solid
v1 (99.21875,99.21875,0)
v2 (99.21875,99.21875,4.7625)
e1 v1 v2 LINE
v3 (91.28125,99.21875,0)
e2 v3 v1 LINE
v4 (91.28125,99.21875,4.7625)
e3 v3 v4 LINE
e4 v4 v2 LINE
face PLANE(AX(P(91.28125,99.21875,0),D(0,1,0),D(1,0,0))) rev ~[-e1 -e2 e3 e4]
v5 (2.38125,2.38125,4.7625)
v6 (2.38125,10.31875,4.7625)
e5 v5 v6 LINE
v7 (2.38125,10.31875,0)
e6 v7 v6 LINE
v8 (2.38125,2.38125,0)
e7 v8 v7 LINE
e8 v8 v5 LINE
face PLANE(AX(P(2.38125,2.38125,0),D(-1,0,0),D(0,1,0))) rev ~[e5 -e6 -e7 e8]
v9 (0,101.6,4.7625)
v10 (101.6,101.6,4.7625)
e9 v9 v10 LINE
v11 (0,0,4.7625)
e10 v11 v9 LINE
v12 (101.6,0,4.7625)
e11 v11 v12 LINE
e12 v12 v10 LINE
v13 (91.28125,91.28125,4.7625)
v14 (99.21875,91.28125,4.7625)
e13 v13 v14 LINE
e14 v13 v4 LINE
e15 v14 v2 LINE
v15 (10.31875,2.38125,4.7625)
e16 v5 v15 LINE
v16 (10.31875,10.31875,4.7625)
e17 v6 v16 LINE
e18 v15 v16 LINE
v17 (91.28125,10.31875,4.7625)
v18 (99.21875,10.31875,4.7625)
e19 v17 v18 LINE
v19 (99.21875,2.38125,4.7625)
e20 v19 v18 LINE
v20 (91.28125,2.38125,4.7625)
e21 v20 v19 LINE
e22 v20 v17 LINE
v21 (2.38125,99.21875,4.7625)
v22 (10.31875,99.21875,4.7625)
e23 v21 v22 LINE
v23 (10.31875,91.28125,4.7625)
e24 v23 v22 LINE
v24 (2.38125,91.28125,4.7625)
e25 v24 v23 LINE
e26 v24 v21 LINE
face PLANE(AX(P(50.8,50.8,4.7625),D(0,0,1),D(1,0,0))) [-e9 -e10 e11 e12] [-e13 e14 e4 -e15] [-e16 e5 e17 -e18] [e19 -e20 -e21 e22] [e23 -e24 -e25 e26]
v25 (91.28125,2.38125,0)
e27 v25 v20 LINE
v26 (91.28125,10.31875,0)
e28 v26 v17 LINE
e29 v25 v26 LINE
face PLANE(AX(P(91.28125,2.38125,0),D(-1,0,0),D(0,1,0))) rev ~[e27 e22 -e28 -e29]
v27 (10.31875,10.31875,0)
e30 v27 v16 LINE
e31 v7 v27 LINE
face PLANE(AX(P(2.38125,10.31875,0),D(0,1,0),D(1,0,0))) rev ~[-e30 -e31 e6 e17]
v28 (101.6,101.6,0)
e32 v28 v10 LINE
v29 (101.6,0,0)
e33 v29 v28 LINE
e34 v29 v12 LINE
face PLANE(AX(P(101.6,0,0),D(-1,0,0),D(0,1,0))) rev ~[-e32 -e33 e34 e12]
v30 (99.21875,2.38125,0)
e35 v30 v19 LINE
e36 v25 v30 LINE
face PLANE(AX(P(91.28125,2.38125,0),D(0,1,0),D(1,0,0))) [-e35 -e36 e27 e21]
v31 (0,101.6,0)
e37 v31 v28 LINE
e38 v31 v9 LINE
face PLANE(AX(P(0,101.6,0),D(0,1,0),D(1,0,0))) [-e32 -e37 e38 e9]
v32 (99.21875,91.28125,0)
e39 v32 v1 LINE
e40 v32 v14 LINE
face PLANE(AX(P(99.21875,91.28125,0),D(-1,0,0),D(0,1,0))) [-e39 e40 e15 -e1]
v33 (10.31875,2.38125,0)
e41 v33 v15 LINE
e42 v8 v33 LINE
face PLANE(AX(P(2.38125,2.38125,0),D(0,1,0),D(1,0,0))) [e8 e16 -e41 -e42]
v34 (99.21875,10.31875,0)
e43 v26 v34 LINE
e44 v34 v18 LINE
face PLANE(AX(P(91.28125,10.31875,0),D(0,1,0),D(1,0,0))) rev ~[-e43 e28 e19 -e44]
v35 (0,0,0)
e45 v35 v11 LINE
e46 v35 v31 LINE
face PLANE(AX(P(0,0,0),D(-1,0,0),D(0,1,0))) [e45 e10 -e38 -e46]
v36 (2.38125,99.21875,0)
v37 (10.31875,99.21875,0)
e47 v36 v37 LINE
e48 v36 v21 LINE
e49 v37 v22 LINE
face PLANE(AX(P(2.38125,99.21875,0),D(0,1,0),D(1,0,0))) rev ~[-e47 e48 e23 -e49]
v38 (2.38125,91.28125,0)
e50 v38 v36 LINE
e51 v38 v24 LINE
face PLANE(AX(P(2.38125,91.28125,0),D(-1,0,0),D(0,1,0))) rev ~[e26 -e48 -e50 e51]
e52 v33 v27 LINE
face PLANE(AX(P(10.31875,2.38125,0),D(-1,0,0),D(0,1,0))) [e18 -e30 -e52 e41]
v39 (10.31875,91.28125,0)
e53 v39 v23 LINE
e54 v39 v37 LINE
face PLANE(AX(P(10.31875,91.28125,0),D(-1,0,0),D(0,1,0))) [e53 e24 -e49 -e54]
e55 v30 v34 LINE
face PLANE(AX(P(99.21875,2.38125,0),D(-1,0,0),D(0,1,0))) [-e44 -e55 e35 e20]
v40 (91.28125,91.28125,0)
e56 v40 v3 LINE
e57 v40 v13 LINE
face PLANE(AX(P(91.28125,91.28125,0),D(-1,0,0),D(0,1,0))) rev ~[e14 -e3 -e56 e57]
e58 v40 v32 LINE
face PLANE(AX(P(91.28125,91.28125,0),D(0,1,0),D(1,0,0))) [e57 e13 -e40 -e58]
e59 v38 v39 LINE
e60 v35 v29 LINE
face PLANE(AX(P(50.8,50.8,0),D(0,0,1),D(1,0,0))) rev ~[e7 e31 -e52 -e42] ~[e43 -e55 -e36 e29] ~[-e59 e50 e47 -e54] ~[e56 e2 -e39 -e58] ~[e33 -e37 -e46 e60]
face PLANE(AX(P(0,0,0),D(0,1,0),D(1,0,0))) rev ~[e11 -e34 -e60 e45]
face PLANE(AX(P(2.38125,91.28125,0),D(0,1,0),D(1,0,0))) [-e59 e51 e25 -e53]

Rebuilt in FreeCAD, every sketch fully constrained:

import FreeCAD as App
import Part
import Sketcher

V = App.Vector
Q = App.Units.Quantity

doc = App.newDocument("Part")
body = doc.addObject("PartDesign::Body", "Body")

# Sketch on XY plane
sketch1 = body.newObject("Sketcher::SketchObject", "Sketch")
sketch1.AttachmentSupport = (doc.getObject("XY_Plane"), [""])
sketch1.MapMode = "FlatFace"
sketch1.addGeometry([
    Part.LineSegment(V(0, 102, 0), V(0, 0, 0)),  # 0
    Part.LineSegment(V(0, 0, 0), V(102, 0, 0)),  # 1
    Part.LineSegment(V(102, 0, 0), V(102, 102, 0)),  # 2
    Part.LineSegment(V(102, 102, 0), V(0, 102, 0)),  # 3
    Part.LineSegment(V(10, 2, 0), V(2, 2, 0)),  # 4
    Part.LineSegment(V(2, 2, 0), V(2, 10, 0)),  # 5
    Part.LineSegment(V(2, 10, 0), V(10, 10, 0)),  # 6
    Part.LineSegment(V(10, 10, 0), V(10, 2, 0)),  # 7
    Part.LineSegment(V(99, 2, 0), V(91, 2, 0)),  # 8
    Part.LineSegment(V(91, 2, 0), V(91, 10, 0)),  # 9
    Part.LineSegment(V(91, 10, 0), V(99, 10, 0)),  # 10
    Part.LineSegment(V(99, 10, 0), V(99, 2, 0)),  # 11
    Part.LineSegment(V(10, 91, 0), V(2, 91, 0)),  # 12
    Part.LineSegment(V(2, 91, 0), V(2, 99, 0)),  # 13
    Part.LineSegment(V(2, 99, 0), V(10, 99, 0)),  # 14
    Part.LineSegment(V(10, 99, 0), V(10, 91, 0)),  # 15
    Part.LineSegment(V(99, 91, 0), V(91, 91, 0)),  # 16
    Part.LineSegment(V(91, 91, 0), V(91, 99, 0)),  # 17
    Part.LineSegment(V(91, 99, 0), V(99, 99, 0)),  # 18
    Part.LineSegment(V(99, 99, 0), V(99, 91, 0)),  # 19
], False)
sketch1.addConstraint([
    Sketcher.Constraint("Coincident", 0, 2, 1, 1),
    Sketcher.Constraint("Coincident", 1, 2, 2, 1),
    Sketcher.Constraint("Coincident", 2, 2, 3, 1),
    Sketcher.Constraint("Coincident", 3, 2, 0, 1),
    Sketcher.Constraint("Coincident", 4, 2, 5, 1),
    Sketcher.Constraint("Coincident", 5, 2, 6, 1),
    Sketcher.Constraint("Coincident", 6, 2, 7, 1),
    Sketcher.Constraint("Coincident", 7, 2, 4, 1),
    Sketcher.Constraint("Coincident", 8, 2, 9, 1),
    Sketcher.Constraint("Coincident", 9, 2, 10, 1),
    Sketcher.Constraint("Coincident", 10, 2, 11, 1),
    Sketcher.Constraint("Coincident", 11, 2, 8, 1),
    Sketcher.Constraint("Coincident", 12, 2, 13, 1),
    Sketcher.Constraint("Coincident", 13, 2, 14, 1),
    Sketcher.Constraint("Coincident", 14, 2, 15, 1),
    Sketcher.Constraint("Coincident", 15, 2, 12, 1),
    Sketcher.Constraint("Coincident", 16, 2, 17, 1),
    Sketcher.Constraint("Coincident", 17, 2, 18, 1),
    Sketcher.Constraint("Coincident", 18, 2, 19, 1),
    Sketcher.Constraint("Coincident", 19, 2, 16, 1),
    Sketcher.Constraint("Vertical", 0),
    Sketcher.Constraint("Horizontal", 1),
    Sketcher.Constraint("Vertical", 2),
    Sketcher.Constraint("Horizontal", 3),
    Sketcher.Constraint("Horizontal", 4),
    Sketcher.Constraint("Vertical", 5),
    Sketcher.Constraint("Horizontal", 6),
    Sketcher.Constraint("Vertical", 7),
    Sketcher.Constraint("Horizontal", 8),
    Sketcher.Constraint("Vertical", 9),
    Sketcher.Constraint("Horizontal", 10),
    Sketcher.Constraint("Vertical", 11),
    Sketcher.Constraint("Horizontal", 12),
    Sketcher.Constraint("Vertical", 13),
    Sketcher.Constraint("Horizontal", 14),
    Sketcher.Constraint("Vertical", 15),
    Sketcher.Constraint("Horizontal", 16),
    Sketcher.Constraint("Vertical", 17),
    Sketcher.Constraint("Horizontal", 18),
    Sketcher.Constraint("Vertical", 19),
    Sketcher.Constraint("Coincident", 0, 2, -1, 1),
    Sketcher.Constraint("Horizontal", 7, 2, 8, 2),
    Sketcher.Constraint("Horizontal", 6, 2, 9, 2),
    Sketcher.Constraint("Horizontal", 15, 2, 16, 2),
    Sketcher.Constraint("Horizontal", 14, 2, 17, 2),
    Sketcher.Constraint("Vertical", 5, 2, 12, 2),
    Sketcher.Constraint("Vertical", 7, 2, 14, 2),
    Sketcher.Constraint("Vertical", 9, 2, 16, 2),
    Sketcher.Constraint("Vertical", 11, 2, 18, 2),
    Sketcher.Constraint("Equal", 6, 8),
    Sketcher.Constraint("Equal", 3, 0),
    Sketcher.Constraint("Equal", 18, 5),
    Sketcher.Constraint("Equal", 11, 13),
    Sketcher.Constraint("DistanceX", 1, 1, 1, 2, Q("4 in")),
    Sketcher.Constraint("DistanceX", 4, 2, 8, 2, Q("3.5 in")),
    Sketcher.Constraint("DistanceY", 4, 2, 12, 2, Q("3.5 in")),
    Sketcher.Constraint("DistanceX", 4, 2, 4, 1, Q("0.3125 in")),
    Sketcher.Constraint("DistanceX", -1, 1, 4, 2, Q("0.09375 in")),
    Sketcher.Constraint("DistanceY", -1, 1, 4, 2, Q("0.09375 in")),
])
pad1 = body.newObject("PartDesign::Pad", "Pad")
pad1.Profile = sketch1
pad1.Length = Q("0.1875 in")

doc.recompute()
